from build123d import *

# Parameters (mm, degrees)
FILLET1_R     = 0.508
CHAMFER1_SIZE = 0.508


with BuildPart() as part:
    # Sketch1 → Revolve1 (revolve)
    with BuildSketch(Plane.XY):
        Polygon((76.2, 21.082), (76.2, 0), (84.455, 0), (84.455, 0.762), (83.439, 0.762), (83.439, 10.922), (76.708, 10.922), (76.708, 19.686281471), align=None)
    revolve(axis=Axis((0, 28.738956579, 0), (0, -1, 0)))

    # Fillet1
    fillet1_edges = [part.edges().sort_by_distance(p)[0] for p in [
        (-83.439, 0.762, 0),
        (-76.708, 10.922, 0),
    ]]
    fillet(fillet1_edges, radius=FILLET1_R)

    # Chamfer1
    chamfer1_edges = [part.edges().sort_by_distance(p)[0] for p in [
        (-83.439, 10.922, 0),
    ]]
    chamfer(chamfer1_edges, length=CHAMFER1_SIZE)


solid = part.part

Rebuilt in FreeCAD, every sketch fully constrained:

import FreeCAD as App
import Part
import Sketcher

V = App.Vector
Q = App.Units.Quantity


def edges_at(feature, points):
    """Names of the edges that pass closest to the given points."""
    edges = feature.Shape.Edges
    near = lambda p: min(range(len(edges)), key=lambda i: edges[i].distToShape(Part.Vertex(*p))[0])
    return sorted({f"Edge{near(p) + 1}" for p in points})


def add_polygon(sketch, points):
    """Adds a closed chain of lines whose ends are joined by coincident constraints."""
    first, n = sketch.GeometryCount, len(points)
    for a, b in zip(points, points[1:] + points[:1]):
        sketch.addGeometry(Part.LineSegment(App.Vector(*a, 0), App.Vector(*b, 0)), False)
    for i in range(n):
        sketch.addConstraint(Sketcher.Constraint("Coincident", first + i, 2, first + (i + 1) % n, 1))

doc = App.newDocument("Part")
params = doc.addObject("Spreadsheet::Sheet", "Params")
for row, (alias, value) in enumerate([
    ("sketch1_height", "0.4 in"),
    ("sketch1_width", "0.04 in"),
    ("sketch1_height2", "0.83 in"),
    ("sketch1_height3", "0.03 in"),
    ("sketch1_width2", "0.325 in"),
    ("revolution_angle", "360 deg"),
    ("fillet_radius", "0.02 in"),
    ("chamfer_size", "0.02 in"),
], start=1):
    params.set(f"A{row}", alias)
    params.set(f"B{row}", "=" + value)
    params.setAlias(f"B{row}", alias)

body = doc.addObject("PartDesign::Body", "Body")

sketch1 = body.newObject("Sketcher::SketchObject", "Sketch")
sketch1.AttachmentSupport = (doc.getObject("XY_Plane"), [""])
sketch1.MapMode = "FlatFace"
add_polygon(sketch1, [(76.2, 21.1), (76.2, 0), (84.5, 0), (84.5, 0.8), (83.4, 0.8), (83.4, 10.9), (76.7, 10.9), (76.7, 19.7)])
sketch1.addConstraint(Sketcher.Constraint("Vertical", 0))
sketch1.addConstraint(Sketcher.Constraint("Horizontal", 1))
sketch1.addConstraint(Sketcher.Constraint("Vertical", 2))
sketch1.addConstraint(Sketcher.Constraint("Horizontal", 3))
sketch1.addConstraint(Sketcher.Constraint("Vertical", 4))
sketch1.addConstraint(Sketcher.Constraint("Horizontal", 5))
sketch1.addConstraint(Sketcher.Constraint("Vertical", 6))
sketch1.addConstraint(Sketcher.Constraint("PointOnObject", 0, 2, -1))
sketch1.addConstraint(Sketcher.Constraint("DistanceY", 4, 1, 4, 2, Q("0.4 in")))
sketch1.addConstraint(Sketcher.Constraint("DistanceX", -1, 1, 0, 2, Q("3 in")))
sketch1.addConstraint(Sketcher.Constraint("Angle", 7, Q("110 deg")))
sketch1.addConstraint(Sketcher.Constraint("DistanceX", 3, 2, 3, 1, Q("0.04 in")))
sketch1.addConstraint(Sketcher.Constraint("DistanceY", 0, 2, 0, 1, Q("0.83 in")))
sketch1.addConstraint(Sketcher.Constraint("DistanceY", 2, 1, 2, 2, Q("0.03 in")))
sketch1.addConstraint(Sketcher.Constraint("DistanceX", 1, 1, 1, 2, Q("0.325 in")))
sketch1.addConstraint(Sketcher.Constraint("DistanceX", 5, 2, 5, 1, Q("0.265 in")))
sketch1.setExpression("Constraints[16]", "Params.sketch1_height")
sketch1.setExpression("Constraints[19]", "Params.sketch1_width")
sketch1.setExpression("Constraints[20]", "Params.sketch1_height2")
sketch1.setExpression("Constraints[21]", "Params.sketch1_height3")
sketch1.setExpression("Constraints[22]", "Params.sketch1_width2")
revolution = body.newObject("PartDesign::Revolution", "Revolution")
revolution.Profile = sketch1
revolution.ReferenceAxis = (sketch1, ["V_Axis"])
revolution.setExpression("Angle", "Params.revolution_angle")
doc.recompute()

fillet = body.newObject("PartDesign::Fillet", "Fillet")
fillet.Base = (revolution, edges_at(revolution, [(-83.439, 0.762, 0), (-76.708, 10.922, 0)]))
fillet.setExpression("Radius", "Params.fillet_radius")
doc.recompute()

chamfer = body.newObject("PartDesign::Chamfer", "Chamfer")
chamfer.Base = (fillet, edges_at(fillet, [(-83.439, 10.922, 0)]))
chamfer.setExpression("Size", "Params.chamfer_size")

doc.recompute()
